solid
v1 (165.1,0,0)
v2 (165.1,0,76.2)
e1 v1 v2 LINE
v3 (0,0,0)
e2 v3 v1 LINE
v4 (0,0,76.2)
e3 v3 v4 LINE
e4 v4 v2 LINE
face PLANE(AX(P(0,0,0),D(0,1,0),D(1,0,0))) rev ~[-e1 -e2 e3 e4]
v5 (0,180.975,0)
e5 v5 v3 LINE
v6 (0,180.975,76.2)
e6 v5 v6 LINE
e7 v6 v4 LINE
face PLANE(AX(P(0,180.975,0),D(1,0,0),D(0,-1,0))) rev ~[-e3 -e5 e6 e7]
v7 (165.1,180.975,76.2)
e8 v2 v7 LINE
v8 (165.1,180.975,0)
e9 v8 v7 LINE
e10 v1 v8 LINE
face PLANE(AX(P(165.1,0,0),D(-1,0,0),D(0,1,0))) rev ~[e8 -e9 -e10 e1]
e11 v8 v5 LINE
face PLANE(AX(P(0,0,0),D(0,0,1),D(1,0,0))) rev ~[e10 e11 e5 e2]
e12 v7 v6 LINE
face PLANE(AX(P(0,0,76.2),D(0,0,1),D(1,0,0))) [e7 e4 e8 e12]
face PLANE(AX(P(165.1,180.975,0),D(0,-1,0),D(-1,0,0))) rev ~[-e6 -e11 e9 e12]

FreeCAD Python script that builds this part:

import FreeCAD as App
import Part
import Sketcher

V = App.Vector
Q = App.Units.Quantity

doc = App.newDocument("Part")
params = doc.addObject("Spreadsheet::Sheet", "Params")
for row, (alias, value) in enumerate([
    ("sketch1_width", "6.5 in"),
    ("sketch1_height", "7.125 in"),
    ("pad1_length", "3 in"),
], start=1):
    params.set(f"A{row}", alias)
    params.set(f"B{row}", "=" + value)
    params.setAlias(f"B{row}", alias)

body = doc.addObject("PartDesign::Body", "Body")

# Sketch on XY plane
sketch1 = body.newObject("Sketcher::SketchObject", "Sketch")
sketch1.AttachmentSupport = (doc.getObject("XY_Plane"), [""])
sketch1.MapMode = "FlatFace"
sketch1.addGeometry([
    Part.LineSegment(V(0, 181, 0), V(0, 0, 0)),
    Part.LineSegment(V(0, 0, 0), V(165, 0, 0)),
    Part.LineSegment(V(165, 0, 0), V(165, 181, 0)),
    Part.LineSegment(V(165, 181, 0), V(0, 181, 0)),
], False)
sketch1.addConstraint([
    Sketcher.Constraint("Coincident", 0, 2, 1, 1),
    Sketcher.Constraint("Coincident", 1, 2, 2, 1),
    Sketcher.Constraint("Coincident", 2, 2, 3, 1),
    Sketcher.Constraint("Coincident", 3, 2, 0, 1),
    Sketcher.Constraint("Vertical", 0),
    Sketcher.Constraint("Horizontal", 1),
    Sketcher.Constraint("Vertical", 2),
    Sketcher.Constraint("Horizontal", 3),
    Sketcher.Constraint("Coincident", 0, 2, -1, 1),
    Sketcher.Constraint("DistanceX", 1, 1, 1, 2, Q("6.5 in")),
    Sketcher.Constraint("DistanceY", 0, 2, 0, 1, Q("7.125 in")),
])
sketch1.setExpression("Constraints[9]", "Params.sketch1_width")
sketch1.setExpression("Constraints[10]", "Params.sketch1_height")
pad1 = body.newObject("PartDesign::Pad", "Pad")
pad1.Profile = sketch1
pad1.setExpression("Length", "Params.pad1_length")

doc.recompute()
